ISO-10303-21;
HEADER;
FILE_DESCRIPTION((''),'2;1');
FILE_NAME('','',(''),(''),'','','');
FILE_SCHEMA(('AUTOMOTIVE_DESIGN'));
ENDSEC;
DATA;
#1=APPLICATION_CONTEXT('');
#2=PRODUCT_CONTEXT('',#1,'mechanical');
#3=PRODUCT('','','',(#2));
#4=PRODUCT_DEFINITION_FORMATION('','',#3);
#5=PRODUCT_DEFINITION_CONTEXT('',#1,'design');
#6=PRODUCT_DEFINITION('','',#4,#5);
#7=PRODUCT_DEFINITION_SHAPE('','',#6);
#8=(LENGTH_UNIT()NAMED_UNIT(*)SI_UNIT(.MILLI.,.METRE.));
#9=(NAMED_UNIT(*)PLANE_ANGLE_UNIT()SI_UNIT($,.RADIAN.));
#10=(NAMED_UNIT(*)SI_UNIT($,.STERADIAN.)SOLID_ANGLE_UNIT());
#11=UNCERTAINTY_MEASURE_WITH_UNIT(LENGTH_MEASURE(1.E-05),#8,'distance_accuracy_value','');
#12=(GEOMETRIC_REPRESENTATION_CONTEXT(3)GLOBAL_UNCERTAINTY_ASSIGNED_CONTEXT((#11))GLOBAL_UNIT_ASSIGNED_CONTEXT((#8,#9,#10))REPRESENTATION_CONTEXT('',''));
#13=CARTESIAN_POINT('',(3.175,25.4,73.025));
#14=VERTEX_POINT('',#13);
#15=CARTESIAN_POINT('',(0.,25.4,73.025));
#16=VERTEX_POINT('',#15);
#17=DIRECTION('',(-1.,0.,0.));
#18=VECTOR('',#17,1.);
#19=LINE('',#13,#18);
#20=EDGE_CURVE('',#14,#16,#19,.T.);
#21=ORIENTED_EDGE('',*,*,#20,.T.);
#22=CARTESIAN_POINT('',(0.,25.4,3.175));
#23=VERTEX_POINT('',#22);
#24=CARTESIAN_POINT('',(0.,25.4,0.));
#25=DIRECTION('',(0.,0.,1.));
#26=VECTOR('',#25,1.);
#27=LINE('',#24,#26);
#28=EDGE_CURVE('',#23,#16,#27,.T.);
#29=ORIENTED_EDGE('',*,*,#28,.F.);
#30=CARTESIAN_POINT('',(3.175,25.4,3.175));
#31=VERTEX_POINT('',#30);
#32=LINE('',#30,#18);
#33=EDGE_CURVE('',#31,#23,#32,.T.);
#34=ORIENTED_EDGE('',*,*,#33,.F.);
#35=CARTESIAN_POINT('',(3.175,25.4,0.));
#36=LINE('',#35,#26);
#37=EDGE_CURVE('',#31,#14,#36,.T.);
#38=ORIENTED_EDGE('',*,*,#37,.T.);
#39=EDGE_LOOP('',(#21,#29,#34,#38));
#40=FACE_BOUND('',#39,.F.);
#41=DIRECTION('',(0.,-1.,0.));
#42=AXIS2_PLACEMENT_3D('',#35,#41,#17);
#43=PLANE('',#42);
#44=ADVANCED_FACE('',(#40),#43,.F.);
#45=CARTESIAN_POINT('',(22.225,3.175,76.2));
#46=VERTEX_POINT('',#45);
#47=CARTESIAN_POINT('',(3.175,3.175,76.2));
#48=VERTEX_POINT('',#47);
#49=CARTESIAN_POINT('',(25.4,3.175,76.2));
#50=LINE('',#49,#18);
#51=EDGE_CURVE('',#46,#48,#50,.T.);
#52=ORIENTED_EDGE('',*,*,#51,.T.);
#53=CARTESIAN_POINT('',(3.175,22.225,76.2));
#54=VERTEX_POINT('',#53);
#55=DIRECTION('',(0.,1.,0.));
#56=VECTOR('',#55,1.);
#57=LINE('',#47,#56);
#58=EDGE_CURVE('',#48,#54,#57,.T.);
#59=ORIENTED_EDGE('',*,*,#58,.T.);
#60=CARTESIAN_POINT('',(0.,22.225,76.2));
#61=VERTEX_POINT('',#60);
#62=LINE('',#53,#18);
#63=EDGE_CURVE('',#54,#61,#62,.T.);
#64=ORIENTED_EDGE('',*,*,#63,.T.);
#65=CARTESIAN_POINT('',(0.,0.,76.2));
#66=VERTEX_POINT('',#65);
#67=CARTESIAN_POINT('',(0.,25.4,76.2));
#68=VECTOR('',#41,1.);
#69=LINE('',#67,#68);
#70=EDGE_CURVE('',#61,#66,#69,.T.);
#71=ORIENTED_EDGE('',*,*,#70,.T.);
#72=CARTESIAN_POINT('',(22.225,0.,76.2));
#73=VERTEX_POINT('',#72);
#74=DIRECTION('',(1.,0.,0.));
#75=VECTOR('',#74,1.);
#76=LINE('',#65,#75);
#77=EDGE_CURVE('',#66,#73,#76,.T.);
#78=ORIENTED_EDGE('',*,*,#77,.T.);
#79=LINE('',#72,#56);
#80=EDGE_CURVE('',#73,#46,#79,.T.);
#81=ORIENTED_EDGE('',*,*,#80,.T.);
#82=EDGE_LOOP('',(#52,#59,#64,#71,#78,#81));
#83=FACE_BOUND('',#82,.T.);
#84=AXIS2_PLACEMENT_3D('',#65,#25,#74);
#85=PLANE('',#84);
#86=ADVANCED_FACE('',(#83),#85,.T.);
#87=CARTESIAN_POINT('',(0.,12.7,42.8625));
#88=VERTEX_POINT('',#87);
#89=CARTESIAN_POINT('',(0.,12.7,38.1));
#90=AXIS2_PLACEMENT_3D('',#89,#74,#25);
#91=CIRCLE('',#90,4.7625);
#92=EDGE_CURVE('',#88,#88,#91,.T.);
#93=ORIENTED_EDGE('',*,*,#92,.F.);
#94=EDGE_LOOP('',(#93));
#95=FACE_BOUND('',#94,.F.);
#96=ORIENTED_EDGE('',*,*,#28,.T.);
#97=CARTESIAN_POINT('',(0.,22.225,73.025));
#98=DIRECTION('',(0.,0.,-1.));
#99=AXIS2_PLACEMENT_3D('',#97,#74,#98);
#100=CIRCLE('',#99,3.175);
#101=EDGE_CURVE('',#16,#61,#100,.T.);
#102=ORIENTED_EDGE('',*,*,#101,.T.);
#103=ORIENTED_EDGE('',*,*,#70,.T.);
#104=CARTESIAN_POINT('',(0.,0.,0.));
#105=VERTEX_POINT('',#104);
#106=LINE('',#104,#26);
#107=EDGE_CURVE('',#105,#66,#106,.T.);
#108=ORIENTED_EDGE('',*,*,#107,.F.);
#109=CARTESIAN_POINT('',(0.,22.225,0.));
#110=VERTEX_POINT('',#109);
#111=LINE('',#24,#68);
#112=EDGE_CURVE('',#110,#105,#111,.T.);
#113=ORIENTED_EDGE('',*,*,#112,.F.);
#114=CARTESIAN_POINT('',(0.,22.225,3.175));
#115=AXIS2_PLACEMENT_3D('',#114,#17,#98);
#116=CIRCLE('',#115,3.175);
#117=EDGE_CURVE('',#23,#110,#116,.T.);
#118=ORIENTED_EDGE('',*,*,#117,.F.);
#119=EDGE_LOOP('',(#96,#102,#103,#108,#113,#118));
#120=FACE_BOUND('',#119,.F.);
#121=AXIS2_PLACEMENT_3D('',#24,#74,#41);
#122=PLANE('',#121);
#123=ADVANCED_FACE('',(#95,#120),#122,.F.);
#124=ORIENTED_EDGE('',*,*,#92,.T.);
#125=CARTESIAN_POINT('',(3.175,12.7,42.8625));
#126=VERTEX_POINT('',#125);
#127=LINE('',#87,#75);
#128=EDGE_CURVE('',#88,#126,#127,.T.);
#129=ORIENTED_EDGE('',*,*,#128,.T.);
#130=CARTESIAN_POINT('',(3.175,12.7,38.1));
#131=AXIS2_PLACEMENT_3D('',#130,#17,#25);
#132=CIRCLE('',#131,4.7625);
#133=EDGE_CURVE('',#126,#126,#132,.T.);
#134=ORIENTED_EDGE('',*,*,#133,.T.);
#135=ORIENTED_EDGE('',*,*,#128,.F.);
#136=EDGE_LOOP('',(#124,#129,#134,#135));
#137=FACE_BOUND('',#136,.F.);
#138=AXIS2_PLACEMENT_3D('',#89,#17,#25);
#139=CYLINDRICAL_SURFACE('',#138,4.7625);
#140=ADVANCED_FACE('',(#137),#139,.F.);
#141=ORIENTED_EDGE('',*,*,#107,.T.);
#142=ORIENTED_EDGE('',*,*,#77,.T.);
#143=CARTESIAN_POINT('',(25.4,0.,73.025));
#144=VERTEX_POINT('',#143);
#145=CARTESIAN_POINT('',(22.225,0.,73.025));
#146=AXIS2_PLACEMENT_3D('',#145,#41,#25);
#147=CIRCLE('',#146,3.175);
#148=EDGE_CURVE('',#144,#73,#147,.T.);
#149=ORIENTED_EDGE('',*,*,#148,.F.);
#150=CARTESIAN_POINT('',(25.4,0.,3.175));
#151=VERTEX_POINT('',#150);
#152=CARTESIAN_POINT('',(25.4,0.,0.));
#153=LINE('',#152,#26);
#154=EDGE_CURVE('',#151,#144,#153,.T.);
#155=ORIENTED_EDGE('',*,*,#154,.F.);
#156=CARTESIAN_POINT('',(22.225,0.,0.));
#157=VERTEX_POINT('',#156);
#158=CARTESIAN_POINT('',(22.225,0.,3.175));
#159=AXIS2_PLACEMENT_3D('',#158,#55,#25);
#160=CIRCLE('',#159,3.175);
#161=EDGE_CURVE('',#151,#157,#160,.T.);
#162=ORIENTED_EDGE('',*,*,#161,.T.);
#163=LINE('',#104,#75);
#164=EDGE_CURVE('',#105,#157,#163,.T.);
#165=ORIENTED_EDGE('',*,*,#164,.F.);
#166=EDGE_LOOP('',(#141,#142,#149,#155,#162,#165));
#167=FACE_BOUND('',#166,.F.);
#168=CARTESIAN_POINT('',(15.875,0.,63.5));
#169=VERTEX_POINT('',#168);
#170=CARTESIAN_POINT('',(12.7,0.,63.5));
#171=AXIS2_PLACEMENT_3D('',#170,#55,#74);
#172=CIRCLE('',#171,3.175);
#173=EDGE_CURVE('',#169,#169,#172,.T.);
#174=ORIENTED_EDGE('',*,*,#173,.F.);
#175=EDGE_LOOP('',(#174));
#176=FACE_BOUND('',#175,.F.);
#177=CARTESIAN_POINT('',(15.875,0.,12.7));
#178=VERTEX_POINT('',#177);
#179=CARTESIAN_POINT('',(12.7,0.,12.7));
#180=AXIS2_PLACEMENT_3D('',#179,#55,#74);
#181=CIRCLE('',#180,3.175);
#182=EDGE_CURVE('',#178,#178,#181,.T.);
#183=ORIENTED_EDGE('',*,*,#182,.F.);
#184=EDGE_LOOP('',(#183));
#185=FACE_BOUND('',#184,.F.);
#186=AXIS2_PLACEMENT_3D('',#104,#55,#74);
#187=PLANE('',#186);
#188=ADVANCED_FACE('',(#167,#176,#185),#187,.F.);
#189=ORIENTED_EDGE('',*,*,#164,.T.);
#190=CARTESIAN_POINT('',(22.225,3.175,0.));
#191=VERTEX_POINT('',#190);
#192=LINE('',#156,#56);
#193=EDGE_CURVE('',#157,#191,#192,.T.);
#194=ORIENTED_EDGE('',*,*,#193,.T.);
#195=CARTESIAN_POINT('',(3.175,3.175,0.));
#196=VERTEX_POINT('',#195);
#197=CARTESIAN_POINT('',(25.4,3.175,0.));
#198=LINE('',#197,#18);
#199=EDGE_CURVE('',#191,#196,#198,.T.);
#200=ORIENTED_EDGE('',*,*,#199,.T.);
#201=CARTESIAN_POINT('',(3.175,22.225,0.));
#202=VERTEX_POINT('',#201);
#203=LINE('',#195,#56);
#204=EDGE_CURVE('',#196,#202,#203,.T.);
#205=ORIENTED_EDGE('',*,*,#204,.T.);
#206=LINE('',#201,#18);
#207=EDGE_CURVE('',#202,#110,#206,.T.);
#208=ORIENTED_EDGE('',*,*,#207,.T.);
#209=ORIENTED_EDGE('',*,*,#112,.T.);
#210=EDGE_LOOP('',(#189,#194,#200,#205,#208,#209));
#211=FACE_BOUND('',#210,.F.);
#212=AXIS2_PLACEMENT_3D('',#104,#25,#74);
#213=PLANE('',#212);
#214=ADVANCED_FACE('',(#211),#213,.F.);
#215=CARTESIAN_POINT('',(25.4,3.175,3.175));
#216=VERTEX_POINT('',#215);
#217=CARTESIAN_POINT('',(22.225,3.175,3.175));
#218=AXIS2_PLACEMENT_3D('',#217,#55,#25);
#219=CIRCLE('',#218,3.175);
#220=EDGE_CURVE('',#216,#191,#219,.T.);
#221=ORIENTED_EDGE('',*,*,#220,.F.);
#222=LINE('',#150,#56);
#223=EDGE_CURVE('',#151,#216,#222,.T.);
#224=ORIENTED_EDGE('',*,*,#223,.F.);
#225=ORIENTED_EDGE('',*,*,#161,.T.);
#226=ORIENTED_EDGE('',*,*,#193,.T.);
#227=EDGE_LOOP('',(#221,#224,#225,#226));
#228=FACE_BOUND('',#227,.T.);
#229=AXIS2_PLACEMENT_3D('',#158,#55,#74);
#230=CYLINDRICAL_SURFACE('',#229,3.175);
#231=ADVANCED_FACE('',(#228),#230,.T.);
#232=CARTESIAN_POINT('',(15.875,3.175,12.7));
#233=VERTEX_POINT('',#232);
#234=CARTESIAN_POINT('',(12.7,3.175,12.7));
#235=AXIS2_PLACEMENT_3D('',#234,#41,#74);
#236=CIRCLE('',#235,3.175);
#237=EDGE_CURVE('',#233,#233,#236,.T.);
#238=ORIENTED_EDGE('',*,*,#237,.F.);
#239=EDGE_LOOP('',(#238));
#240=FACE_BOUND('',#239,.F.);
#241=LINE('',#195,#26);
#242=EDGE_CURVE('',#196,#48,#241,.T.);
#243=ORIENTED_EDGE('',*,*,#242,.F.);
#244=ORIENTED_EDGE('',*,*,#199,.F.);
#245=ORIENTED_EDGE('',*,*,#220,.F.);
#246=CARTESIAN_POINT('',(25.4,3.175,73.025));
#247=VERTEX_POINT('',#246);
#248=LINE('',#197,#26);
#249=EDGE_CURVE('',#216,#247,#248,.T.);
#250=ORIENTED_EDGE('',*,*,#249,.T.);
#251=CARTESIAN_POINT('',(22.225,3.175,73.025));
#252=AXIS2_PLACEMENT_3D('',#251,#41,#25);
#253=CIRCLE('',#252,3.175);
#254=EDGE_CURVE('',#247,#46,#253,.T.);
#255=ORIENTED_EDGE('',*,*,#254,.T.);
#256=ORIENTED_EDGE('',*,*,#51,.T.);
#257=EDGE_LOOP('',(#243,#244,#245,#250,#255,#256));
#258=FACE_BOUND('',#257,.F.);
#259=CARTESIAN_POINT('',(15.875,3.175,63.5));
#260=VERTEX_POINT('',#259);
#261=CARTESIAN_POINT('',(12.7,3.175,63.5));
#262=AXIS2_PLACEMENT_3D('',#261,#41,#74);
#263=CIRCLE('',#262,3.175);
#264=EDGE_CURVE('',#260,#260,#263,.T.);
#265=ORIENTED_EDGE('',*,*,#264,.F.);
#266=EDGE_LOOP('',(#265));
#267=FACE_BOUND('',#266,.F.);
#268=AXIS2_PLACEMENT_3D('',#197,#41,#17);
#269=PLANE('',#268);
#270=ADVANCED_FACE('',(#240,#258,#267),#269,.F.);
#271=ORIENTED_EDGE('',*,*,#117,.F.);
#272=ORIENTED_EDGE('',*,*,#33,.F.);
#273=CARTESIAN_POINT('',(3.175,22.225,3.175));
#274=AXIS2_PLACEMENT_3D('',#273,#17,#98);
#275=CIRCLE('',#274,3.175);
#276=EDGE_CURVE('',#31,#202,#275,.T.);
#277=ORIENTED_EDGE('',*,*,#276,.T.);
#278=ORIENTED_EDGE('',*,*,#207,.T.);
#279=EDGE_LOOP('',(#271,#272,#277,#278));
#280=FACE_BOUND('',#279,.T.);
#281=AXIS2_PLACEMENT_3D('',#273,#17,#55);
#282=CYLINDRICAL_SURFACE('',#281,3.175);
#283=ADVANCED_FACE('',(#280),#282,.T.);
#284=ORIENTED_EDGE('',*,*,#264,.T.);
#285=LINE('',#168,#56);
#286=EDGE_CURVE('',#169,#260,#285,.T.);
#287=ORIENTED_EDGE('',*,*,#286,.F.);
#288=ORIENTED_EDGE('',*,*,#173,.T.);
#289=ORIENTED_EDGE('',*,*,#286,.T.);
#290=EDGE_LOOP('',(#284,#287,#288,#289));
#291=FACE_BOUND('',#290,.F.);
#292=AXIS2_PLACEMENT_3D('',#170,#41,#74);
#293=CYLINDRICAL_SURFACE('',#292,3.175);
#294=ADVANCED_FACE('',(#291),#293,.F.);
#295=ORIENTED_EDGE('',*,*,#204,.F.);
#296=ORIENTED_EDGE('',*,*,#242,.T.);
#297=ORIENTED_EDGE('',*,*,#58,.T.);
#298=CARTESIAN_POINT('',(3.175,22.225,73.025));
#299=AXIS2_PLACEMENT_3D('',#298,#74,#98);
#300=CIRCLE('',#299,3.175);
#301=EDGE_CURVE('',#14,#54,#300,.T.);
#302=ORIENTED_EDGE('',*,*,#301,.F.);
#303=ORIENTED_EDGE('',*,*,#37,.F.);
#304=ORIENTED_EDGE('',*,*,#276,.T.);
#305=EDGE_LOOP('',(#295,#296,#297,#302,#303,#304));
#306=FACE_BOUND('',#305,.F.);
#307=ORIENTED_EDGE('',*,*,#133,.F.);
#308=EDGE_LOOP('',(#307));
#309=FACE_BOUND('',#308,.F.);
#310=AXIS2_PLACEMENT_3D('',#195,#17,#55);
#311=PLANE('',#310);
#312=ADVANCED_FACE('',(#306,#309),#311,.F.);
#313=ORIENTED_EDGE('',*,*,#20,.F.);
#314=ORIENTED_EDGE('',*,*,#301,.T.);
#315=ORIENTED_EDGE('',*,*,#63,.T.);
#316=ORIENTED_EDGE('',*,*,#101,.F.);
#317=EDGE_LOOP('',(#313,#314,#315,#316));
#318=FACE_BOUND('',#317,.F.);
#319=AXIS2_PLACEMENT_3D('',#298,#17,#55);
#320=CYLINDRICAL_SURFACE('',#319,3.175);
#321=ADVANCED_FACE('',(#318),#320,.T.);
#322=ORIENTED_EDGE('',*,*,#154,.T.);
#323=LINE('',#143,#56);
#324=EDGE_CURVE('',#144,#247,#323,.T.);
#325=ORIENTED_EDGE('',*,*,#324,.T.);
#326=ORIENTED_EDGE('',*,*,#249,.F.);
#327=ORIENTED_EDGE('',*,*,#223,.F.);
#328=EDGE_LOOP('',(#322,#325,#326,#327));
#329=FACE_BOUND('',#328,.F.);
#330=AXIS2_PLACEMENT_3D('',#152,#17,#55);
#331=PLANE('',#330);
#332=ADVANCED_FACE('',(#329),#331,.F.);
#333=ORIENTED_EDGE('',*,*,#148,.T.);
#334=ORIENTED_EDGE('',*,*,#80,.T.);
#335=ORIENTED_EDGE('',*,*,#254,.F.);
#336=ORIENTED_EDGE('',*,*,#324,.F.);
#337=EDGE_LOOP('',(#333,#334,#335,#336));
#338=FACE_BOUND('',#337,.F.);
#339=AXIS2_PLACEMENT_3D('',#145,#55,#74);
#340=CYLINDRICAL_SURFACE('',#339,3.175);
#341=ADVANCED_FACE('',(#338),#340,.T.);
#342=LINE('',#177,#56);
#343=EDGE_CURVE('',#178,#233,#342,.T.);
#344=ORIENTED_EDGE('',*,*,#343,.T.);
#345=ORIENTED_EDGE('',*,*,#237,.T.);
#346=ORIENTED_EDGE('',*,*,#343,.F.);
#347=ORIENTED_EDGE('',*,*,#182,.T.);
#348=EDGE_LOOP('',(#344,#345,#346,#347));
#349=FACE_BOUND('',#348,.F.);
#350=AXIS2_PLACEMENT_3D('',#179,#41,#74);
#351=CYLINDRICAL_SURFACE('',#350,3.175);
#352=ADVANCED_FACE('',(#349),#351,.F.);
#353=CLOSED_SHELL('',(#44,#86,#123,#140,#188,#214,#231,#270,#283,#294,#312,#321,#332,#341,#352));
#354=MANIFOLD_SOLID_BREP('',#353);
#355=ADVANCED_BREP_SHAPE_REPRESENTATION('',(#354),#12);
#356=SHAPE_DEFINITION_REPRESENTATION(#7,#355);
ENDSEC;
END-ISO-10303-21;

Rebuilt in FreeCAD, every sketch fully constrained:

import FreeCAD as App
import Part
import Sketcher
Q = App.Units.Quantity


def edges_at(feature, points):
    """Names of the edges that pass closest to the given points."""
    edges = feature.Shape.Edges
    near = lambda p: min(range(len(edges)), key=lambda i: edges[i].distToShape(Part.Vertex(*p))[0])
    return sorted({f"Edge{near(p) + 1}" for p in points})


def add_polygon(sketch, points):
    """Adds a closed chain of lines whose ends are joined by coincident constraints."""
    first, n = sketch.GeometryCount, len(points)
    for a, b in zip(points, points[1:] + points[:1]):
        sketch.addGeometry(Part.LineSegment(App.Vector(*a, 0), App.Vector(*b, 0)), False)
    for i in range(n):
        sketch.addConstraint(Sketcher.Constraint("Coincident", first + i, 2, first + (i + 1) % n, 1))

doc = App.newDocument("Part")
params = doc.addObject("Spreadsheet::Sheet", "Params")
for row, (alias, value) in enumerate([
    ("sketch1_width", "1 in"),
    ("sketch1_width2", "0.125 in"),
    ("pad1_length", "3 in"),
    ("fillet_radius", "0.125 in"),
    ("sketch2_diameter", "0.375 in"),
    ("sketch3_diameter", "0.25 in"),
], start=1):
    params.set(f"A{row}", alias)
    params.set(f"B{row}", "=" + value)
    params.setAlias(f"B{row}", alias)

body = doc.addObject("PartDesign::Body", "Body")

# Sketch on XY plane
sketch1 = body.newObject("Sketcher::SketchObject", "Sketch")
sketch1.AttachmentSupport = (doc.getObject("XY_Plane"), [""])
sketch1.MapMode = "FlatFace"
add_polygon(sketch1, [(3.175, 25.4), (0, 25.4), (0, 0), (25.4, 0), (25.4, 3.175), (3.175, 3.175)])  # lines 0-5
sketch1.addConstraint(Sketcher.Constraint("Horizontal", 0))
sketch1.addConstraint(Sketcher.Constraint("Vertical", 1))
sketch1.addConstraint(Sketcher.Constraint("Horizontal", 2))
sketch1.addConstraint(Sketcher.Constraint("Vertical", 3))
sketch1.addConstraint(Sketcher.Constraint("Horizontal", 4))
sketch1.addConstraint(Sketcher.Constraint("Vertical", 5))
sketch1.addConstraint(Sketcher.Constraint("Coincident", 1, 2, -1, 1))
sketch1.addConstraint(Sketcher.Constraint("Equal", 2, 1))
sketch1.addConstraint(Sketcher.Constraint("Equal", 0, 3))
sketch1.addConstraint(Sketcher.Constraint("DistanceX", 2, 1, 2, 2, Q("1 in")))
sketch1.addConstraint(Sketcher.Constraint("DistanceX", 0, 2, 0, 1, Q("0.125 in")))
sketch1.setExpression("Constraints[15]", "Params.sketch1_width")
sketch1.setExpression("Constraints[16]", "Params.sketch1_width2")
pad1 = body.newObject("PartDesign::Pad", "Pad")
pad1.Profile = sketch1
pad1.setExpression("Length", "Params.pad1_length")
doc.recompute()

fillet = body.newObject("PartDesign::Fillet", "Fillet")
fillet.Base = (pad1, edges_at(pad1, [
    (1.587, 25.4, 76.2),
    (1.587, 25.4, 0),
    (25.4, 1.587, 0),
    (25.4, 1.587, 76.2),
]))
fillet.setExpression("Radius", "Params.fillet_radius")

# Sketch on YZ plane
sketch2 = body.newObject("Sketcher::SketchObject", "Sketch001")
sketch2.AttachmentSupport = (doc.getObject("YZ_Plane"), [""])
sketch2.MapMode = "FlatFace"
sketch2.addGeometry(Part.Circle(App.Vector(12.7, 38.1, 0), App.Vector(0, 0, 1), 4.7625), False)
sketch2.addConstraint(Sketcher.Constraint("Diameter", 0, Q("0.375 in")))
sketch2.addConstraint(Sketcher.Constraint("DistanceX", -1, 1, 0, 3, Q("0.5 in")))
sketch2.addConstraint(Sketcher.Constraint("DistanceY", -1, 1, 0, 3, Q("1.5 in")))
sketch2.setExpression("Constraints[0]", "Params.sketch2_diameter")
pocket1 = body.newObject("PartDesign::Pocket", "Pocket")
pocket1.Profile = sketch2
pocket1.Type = "UpToFirst"
pocket1.Reversed = True

# Sketch on XZ plane
sketch3 = body.newObject("Sketcher::SketchObject", "Sketch002")
sketch3.AttachmentSupport = (doc.getObject("XZ_Plane"), [""])
sketch3.MapMode = "FlatFace"
sketch3.addGeometry(Part.Circle(App.Vector(12.7, 63.5, 0), App.Vector(0, 0, 1), 3.175), False)
sketch3.addGeometry(Part.Circle(App.Vector(12.7, 12.7, 0), App.Vector(0, 0, 1), 3.175), False)
sketch3.addConstraint(Sketcher.Constraint("Equal", 0, 1))
sketch3.addConstraint(Sketcher.Constraint("Vertical", 0, 3, 1, 3))
sketch3.addConstraint(Sketcher.Constraint("Diameter", 0, Q("0.25 in")))
sketch3.addConstraint(Sketcher.Constraint("DistanceX", -1, 1, 0, 3, Q("0.5 in")))
sketch3.addConstraint(Sketcher.Constraint("DistanceY", -1, 1, 1, 3, Q("0.5 in")))
sketch3.addConstraint(Sketcher.Constraint("DistanceY", 1, 3, 0, 3, Q("2 in")))
sketch3.setExpression("Constraints[2]", "Params.sketch3_diameter")
pocket2 = body.newObject("PartDesign::Pocket", "Pocket001")
pocket2.Profile = sketch3
pocket2.Type = "UpToFirst"

doc.recompute()
